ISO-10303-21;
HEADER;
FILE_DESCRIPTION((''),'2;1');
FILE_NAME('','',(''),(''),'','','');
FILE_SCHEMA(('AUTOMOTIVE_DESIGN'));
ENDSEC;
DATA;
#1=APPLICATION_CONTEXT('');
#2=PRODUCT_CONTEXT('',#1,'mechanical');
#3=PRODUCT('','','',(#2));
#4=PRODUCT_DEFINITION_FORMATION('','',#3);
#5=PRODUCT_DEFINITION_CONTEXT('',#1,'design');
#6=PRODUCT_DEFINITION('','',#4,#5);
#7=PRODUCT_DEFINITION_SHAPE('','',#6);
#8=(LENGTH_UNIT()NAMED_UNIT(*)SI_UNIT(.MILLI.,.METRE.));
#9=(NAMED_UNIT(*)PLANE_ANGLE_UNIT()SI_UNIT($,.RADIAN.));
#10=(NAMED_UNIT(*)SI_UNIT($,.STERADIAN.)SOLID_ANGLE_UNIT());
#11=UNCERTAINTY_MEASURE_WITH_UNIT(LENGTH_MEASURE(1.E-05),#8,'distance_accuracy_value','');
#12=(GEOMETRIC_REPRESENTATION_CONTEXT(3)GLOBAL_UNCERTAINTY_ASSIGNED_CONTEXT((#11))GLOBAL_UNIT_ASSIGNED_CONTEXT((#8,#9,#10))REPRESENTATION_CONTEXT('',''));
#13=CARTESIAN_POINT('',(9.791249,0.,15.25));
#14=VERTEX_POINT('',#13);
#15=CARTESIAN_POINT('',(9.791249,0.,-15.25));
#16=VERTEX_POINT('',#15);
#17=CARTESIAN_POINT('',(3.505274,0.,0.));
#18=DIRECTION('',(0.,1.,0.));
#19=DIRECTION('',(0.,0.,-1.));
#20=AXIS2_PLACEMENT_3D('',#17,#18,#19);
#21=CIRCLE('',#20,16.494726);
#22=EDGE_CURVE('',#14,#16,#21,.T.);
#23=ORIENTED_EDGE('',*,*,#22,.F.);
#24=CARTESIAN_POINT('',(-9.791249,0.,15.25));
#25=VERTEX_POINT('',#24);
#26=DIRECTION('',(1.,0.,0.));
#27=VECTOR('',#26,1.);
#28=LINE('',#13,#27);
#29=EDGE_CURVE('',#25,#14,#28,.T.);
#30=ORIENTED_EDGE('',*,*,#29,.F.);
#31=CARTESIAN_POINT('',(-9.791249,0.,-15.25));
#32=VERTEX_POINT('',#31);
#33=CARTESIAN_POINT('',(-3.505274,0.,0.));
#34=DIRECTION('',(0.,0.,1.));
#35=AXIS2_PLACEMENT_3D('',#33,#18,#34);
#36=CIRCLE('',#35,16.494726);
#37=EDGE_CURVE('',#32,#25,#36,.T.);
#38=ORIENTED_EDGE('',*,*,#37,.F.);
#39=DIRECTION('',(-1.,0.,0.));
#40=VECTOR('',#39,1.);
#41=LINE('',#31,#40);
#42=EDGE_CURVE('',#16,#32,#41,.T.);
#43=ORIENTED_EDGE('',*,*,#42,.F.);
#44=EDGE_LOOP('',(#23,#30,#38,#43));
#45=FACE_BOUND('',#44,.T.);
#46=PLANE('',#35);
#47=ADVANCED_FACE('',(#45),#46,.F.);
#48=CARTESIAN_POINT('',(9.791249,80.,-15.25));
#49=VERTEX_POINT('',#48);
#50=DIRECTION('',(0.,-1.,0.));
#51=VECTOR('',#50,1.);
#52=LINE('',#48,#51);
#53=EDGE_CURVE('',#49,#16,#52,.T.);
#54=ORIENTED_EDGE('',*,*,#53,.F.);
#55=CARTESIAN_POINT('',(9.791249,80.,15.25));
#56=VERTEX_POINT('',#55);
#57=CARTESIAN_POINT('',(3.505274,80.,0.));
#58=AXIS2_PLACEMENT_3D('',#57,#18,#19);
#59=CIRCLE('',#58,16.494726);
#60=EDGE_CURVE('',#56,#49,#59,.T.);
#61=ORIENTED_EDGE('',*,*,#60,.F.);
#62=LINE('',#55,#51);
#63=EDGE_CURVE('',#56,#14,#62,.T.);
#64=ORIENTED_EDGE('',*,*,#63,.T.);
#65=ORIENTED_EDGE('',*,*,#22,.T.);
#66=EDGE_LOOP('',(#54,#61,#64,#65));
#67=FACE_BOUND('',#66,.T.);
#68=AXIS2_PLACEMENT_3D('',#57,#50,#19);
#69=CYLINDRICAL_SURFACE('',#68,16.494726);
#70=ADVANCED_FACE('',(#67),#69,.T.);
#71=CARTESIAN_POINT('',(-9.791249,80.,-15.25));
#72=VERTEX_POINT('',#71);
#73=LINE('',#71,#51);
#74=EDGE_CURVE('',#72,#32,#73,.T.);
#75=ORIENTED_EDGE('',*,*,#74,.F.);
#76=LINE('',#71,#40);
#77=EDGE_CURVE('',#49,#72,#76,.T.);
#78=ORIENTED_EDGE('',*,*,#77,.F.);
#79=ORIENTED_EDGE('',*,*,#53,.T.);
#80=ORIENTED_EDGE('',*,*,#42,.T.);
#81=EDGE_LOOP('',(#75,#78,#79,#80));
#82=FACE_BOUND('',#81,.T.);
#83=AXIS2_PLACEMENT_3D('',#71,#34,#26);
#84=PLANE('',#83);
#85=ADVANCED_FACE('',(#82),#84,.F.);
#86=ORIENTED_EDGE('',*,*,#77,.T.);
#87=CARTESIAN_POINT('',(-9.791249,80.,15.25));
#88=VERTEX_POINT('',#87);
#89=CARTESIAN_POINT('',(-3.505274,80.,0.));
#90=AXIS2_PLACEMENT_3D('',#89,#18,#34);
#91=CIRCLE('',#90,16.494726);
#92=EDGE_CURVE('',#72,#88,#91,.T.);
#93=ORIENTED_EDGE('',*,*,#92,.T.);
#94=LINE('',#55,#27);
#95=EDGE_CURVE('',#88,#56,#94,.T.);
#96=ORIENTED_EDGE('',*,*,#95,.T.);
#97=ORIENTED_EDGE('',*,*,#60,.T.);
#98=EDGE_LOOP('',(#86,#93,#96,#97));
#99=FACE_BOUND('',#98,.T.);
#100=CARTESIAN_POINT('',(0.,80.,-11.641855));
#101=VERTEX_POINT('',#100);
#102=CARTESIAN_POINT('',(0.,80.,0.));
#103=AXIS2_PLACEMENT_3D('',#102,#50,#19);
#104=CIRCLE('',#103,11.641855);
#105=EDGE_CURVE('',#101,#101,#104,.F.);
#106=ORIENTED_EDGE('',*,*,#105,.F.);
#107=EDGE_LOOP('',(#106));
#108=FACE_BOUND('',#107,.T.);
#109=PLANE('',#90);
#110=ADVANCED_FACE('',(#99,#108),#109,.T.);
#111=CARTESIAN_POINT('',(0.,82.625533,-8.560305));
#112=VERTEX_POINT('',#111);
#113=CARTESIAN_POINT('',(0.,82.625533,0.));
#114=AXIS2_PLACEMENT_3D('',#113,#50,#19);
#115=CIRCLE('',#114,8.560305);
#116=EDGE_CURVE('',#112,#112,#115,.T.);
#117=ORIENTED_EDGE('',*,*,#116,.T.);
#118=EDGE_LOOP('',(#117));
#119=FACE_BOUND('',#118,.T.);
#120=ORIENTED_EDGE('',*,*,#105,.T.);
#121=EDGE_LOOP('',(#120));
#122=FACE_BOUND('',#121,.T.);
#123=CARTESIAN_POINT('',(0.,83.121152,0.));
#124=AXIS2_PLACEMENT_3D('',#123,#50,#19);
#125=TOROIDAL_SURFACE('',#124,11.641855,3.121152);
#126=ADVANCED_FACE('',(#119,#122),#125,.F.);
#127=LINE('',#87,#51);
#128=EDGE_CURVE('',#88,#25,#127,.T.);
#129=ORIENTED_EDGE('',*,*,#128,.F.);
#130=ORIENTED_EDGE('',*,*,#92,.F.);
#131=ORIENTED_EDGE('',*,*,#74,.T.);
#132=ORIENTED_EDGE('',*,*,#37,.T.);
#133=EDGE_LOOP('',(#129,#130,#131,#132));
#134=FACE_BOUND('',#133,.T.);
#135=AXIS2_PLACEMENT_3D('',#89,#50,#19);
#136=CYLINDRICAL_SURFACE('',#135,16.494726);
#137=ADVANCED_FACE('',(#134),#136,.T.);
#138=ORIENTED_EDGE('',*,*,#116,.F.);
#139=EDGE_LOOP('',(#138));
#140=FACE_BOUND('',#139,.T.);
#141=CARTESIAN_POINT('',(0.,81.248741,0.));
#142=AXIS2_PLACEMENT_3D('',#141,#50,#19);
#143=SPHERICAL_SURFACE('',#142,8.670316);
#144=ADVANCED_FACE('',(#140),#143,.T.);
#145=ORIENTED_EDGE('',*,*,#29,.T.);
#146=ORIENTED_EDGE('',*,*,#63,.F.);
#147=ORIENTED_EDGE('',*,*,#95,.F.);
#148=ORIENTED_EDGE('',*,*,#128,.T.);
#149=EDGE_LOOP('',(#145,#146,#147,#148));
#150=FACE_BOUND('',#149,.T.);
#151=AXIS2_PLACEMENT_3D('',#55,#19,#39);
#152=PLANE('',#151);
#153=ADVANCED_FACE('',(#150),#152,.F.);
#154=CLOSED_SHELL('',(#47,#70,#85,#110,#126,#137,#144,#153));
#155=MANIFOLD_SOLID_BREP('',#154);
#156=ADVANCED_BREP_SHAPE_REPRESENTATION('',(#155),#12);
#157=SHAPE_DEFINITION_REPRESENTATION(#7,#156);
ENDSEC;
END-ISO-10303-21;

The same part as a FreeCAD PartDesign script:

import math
import FreeCAD as App
import Part
import Sketcher
Q = App.Units.Quantity

doc = App.newDocument("Part")
body = doc.addObject("PartDesign::Body", "Body")

sketch1 = body.newObject("Sketcher::SketchObject", "Sketch")
sketch1.AttachmentSupport = (doc.getObject("XZ_Plane"), [""])
sketch1.MapMode = "FlatFace"
sketch1.addGeometry(Part.LineSegment(App.Vector(9.791249, -15.25, 0), App.Vector(-9.791249, -15.25, 0)), False)
sketch1.addGeometry(Part.ArcOfCircle(Part.Circle(App.Vector(-3.505274, 0, 0), App.Vector(0, 0, 1), 16.494726), math.radians(112.401215), math.radians(247.598785)), False)
sketch1.addGeometry(Part.LineSegment(App.Vector(-9.791249, 15.25, 0), App.Vector(9.791249, 15.25, 0)), False)
sketch1.addGeometry(Part.ArcOfCircle(Part.Circle(App.Vector(3.505274, 0, 0), App.Vector(0, 0, 1), 16.494726), math.radians(-67.598785), math.radians(67.598785)), False)
sketch1.addConstraint(Sketcher.Constraint("Coincident", 0, 2, 1, 2))
sketch1.addConstraint(Sketcher.Constraint("Coincident", 1, 1, 2, 1))
sketch1.addConstraint(Sketcher.Constraint("Coincident", 2, 2, 3, 2))
sketch1.addConstraint(Sketcher.Constraint("Coincident", 3, 1, 0, 1))
sketch1.addConstraint(Sketcher.Constraint("Horizontal", 0))
sketch1.addConstraint(Sketcher.Constraint("Horizontal", 2))
sketch1.addConstraint(Sketcher.Constraint("Equal", 1, 3))
sketch1.addConstraint(Sketcher.Constraint("Symmetric", 1, 3, 3, 3, -1, 1))
sketch1.addConstraint(Sketcher.Constraint("Symmetric", 0, 2, 1, 1, -1))
sketch1.addConstraint(Sketcher.Constraint("DistanceY", 0, 2, 1, 1, Q("30.5 mm")))
sketch1.addConstraint(Sketcher.Constraint("Radius", 1, Q("16.494726 mm")))
sketch1.addConstraint(Sketcher.Constraint("DistanceX", 0, 2, 0, 1, Q("19.582498 mm")))
pad1 = body.newObject("PartDesign::Pad", "Pad")
pad1.Profile = sketch1
pad1.Length = 80
pad1.Reversed = True

sketch2 = body.newObject("Sketcher::SketchObject", "Sketch001")
sketch2.AttachmentSupport = (doc.getObject("YZ_Plane"), [""])
sketch2.MapMode = "FlatFace"
sketch2.addGeometry(Part.LineSegment(App.Vector(80, 0, 0), App.Vector(80, -11.641855, 0)), False)
sketch2.addGeometry(Part.ArcOfCircle(Part.Circle(App.Vector(83.121152, -11.641855, 0), App.Vector(0, 0, 1), 3.121152), math.radians(99.136884), math.radians(180)), False)
sketch2.addGeometry(Part.ArcOfCircle(Part.Circle(App.Vector(81.248741, 0, 0), App.Vector(0, 0, 1), 8.670316), math.radians(-80.863116), math.radians(0)), False)
sketch2.addGeometry(Part.LineSegment(App.Vector(89.919057, 0, 0), App.Vector(80, 0, 0)), False)
sketch2.addConstraint(Sketcher.Constraint("Tangent", 0, 2, 1, 2))
sketch2.addConstraint(Sketcher.Constraint("Tangent", 1, 1, 2, 1))
sketch2.addConstraint(Sketcher.Constraint("Coincident", 2, 2, 3, 1))
sketch2.addConstraint(Sketcher.Constraint("Coincident", 3, 2, 0, 1))
sketch2.addConstraint(Sketcher.Constraint("Vertical", 0))
sketch2.addConstraint(Sketcher.Constraint("Horizontal", 3))
sketch2.addConstraint(Sketcher.Constraint("PointOnObject", 2, 3, -1))
sketch2.addConstraint(Sketcher.Constraint("PointOnObject", 2, 2, -1))
sketch2.addConstraint(Sketcher.Constraint("DistanceX", -1, 1, 0, 2, Q("80 mm")))
sketch2.addConstraint(Sketcher.Constraint("Radius", 1, Q("3.121152 mm")))
sketch2.addConstraint(Sketcher.Constraint("Radius", 2, Q("8.670316 mm")))
sketch2.addConstraint(Sketcher.Constraint("DistanceX", 3, 2, 3, 1, Q("9.919057 mm")))
revolution = body.newObject("PartDesign::Revolution", "Revolution")
revolution.Profile = sketch2
revolution.ReferenceAxis = (sketch2, ["H_Axis"])
revolution.Angle = 360

doc.recompute()
